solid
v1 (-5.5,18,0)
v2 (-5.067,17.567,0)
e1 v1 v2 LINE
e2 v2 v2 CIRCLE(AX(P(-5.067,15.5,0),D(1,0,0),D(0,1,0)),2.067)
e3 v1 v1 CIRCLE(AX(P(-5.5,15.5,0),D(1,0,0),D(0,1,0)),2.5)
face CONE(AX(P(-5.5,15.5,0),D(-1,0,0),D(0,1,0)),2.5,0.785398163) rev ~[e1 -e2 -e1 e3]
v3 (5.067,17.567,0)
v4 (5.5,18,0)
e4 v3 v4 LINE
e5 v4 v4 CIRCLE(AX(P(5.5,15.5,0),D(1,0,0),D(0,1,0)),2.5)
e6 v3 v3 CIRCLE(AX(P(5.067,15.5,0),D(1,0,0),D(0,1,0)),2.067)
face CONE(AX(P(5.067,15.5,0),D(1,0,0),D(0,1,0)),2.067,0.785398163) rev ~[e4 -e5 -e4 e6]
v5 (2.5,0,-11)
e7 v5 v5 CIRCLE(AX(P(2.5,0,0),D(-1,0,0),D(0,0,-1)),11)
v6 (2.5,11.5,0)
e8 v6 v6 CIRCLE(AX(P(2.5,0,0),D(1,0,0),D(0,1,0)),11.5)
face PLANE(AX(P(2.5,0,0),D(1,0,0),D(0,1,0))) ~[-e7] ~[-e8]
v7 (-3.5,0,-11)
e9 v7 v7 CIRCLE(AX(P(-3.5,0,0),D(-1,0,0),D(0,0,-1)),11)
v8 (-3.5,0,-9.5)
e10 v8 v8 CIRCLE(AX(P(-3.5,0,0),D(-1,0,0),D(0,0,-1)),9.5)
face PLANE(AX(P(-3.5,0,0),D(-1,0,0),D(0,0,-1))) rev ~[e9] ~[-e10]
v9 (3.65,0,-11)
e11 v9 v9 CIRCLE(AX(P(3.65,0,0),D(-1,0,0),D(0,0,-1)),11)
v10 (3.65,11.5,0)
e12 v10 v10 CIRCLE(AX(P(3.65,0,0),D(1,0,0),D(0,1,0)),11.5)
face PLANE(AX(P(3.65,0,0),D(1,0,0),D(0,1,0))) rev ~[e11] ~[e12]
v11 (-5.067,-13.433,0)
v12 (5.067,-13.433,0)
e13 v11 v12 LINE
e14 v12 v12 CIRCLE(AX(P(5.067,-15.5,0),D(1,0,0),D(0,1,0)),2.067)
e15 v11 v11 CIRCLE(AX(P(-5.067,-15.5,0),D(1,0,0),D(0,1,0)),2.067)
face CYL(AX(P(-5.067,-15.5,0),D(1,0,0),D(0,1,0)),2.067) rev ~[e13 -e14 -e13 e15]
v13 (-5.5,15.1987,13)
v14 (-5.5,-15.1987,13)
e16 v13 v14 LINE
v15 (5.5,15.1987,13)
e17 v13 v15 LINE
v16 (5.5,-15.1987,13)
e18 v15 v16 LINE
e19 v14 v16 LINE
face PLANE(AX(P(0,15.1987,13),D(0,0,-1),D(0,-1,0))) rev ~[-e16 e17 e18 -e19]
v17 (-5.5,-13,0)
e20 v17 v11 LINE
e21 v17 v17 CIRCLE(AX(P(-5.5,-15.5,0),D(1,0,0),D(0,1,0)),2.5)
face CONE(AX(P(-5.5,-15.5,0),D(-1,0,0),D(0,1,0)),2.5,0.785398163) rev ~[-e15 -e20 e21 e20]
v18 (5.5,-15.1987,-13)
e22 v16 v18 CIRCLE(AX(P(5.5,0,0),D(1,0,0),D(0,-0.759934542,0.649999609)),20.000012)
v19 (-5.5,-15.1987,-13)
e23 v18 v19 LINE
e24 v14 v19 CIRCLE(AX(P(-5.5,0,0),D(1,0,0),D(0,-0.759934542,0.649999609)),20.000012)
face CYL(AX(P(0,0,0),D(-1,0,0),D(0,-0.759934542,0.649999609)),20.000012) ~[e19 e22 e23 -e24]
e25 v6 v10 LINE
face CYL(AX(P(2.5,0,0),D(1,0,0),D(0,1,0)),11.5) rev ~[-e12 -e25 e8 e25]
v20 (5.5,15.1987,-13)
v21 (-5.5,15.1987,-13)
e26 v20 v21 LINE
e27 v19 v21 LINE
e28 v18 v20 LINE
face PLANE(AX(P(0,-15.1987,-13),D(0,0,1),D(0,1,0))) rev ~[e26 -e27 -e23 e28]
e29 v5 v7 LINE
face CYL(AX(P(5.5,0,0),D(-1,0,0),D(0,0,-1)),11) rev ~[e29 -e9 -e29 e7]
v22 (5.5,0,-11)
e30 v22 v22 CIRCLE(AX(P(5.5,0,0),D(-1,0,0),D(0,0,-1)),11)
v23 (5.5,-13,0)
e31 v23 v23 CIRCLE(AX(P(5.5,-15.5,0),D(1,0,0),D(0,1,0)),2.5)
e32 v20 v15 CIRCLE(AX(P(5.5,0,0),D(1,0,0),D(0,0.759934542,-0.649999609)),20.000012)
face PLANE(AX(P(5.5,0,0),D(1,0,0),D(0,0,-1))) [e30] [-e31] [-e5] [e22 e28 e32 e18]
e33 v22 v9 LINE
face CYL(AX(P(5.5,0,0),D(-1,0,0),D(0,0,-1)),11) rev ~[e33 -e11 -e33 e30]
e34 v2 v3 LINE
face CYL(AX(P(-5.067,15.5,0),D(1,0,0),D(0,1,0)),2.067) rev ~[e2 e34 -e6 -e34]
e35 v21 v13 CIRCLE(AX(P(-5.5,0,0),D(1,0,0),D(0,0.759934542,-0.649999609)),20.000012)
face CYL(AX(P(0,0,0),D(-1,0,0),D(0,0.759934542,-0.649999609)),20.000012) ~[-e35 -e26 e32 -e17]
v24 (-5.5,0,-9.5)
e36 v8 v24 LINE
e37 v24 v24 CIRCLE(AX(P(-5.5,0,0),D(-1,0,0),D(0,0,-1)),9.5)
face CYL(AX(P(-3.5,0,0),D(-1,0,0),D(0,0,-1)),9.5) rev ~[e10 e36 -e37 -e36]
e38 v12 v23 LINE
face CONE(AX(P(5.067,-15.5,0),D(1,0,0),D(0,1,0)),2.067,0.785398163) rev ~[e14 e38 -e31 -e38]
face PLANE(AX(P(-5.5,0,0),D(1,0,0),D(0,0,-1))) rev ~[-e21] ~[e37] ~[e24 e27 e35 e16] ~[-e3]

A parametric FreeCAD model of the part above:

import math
import FreeCAD as App
import Part
import Sketcher

doc = App.newDocument("Part")
body = doc.addObject("PartDesign::Body", "Body")

sketch1 = body.newObject("Sketcher::SketchObject", "Sketch")
sketch1.AttachmentSupport = (doc.getObject("YZ_Plane"), [""])
sketch1.MapMode = "FlatFace"
sketch1.addGeometry(Part.ArcOfCircle(Part.Circle(App.Vector(0, 0, 0), App.Vector(0, 0, 1), 20), math.radians(-41), math.radians(41)), False)
sketch1.addGeometry(Part.LineSegment(App.Vector(15, 13, 0), App.Vector(-15, 13, 0)), False)
sketch1.addGeometry(Part.ArcOfCircle(Part.Circle(App.Vector(0, 0, 0), App.Vector(0, 0, 1), 20), math.radians(139), math.radians(221)), False)
sketch1.addGeometry(Part.LineSegment(App.Vector(-15, -13, 0), App.Vector(15, -13, 0)), False)
sketch1.addConstraint(Sketcher.Constraint("Coincident", 0, 2, 1, 1))
sketch1.addConstraint(Sketcher.Constraint("Coincident", 1, 2, 2, 1))
sketch1.addConstraint(Sketcher.Constraint("Coincident", 2, 2, 3, 1))
sketch1.addConstraint(Sketcher.Constraint("Coincident", 3, 2, 0, 1))
sketch1.addConstraint(Sketcher.Constraint("Horizontal", 1))
sketch1.addConstraint(Sketcher.Constraint("Horizontal", 3))
sketch1.addConstraint(Sketcher.Constraint("Coincident", 0, 3, -1, 1))
sketch1.addConstraint(Sketcher.Constraint("Coincident", 2, 3, -1, 1))
sketch1.addConstraint(Sketcher.Constraint("Equal", 0, 2))
sketch1.addConstraint(Sketcher.Constraint("Vertical", 1, 2, 2, 2))
sketch1.addConstraint(Sketcher.Constraint("Radius", 0, 20.0))
sketch1.addConstraint(Sketcher.Constraint("DistanceY", -1, 1, 0, 2, 13.0))
pad1 = body.newObject("PartDesign::Pad", "Pad")
pad1.Profile = sketch1
pad1.Length = 11
pad1.Midplane = True

sketch2 = body.newObject("Sketcher::SketchObject", "Sketch001")
sketch2.AttachmentSupport = (doc.getObject("YZ_Plane"), [""])
sketch2.MapMode = "FlatFace"
sketch2.AttachmentOffset = App.Placement(App.Vector(0, 0, 5.5), App.Rotation())
sketch2.addGeometry(Part.Circle(App.Vector(0, 0, 0), App.Vector(0, 0, 1), 10), False)
sketch2.addConstraint(Sketcher.Constraint("Coincident", 0, 3, -1, 1))
sketch2.addConstraint(Sketcher.Constraint("Diameter", 0, 19.0))
doc.recompute()
hole = body.newObject("PartDesign::Hole", "Hole")
hole.Profile = sketch2
hole.ThreadType = "None"
hole.Diameter = 19
hole.DepthType = "Dimension"
hole.Depth = 11
hole.DrillPoint = "Flat"
hole.HoleCutType = "Counterbore"
hole.HoleCutDiameter = 22
hole.HoleCutDepth = 9

sketch3 = body.newObject("Sketcher::SketchObject", "Sketch002")
sketch3.AttachmentSupport = (doc.getObject("XY_Plane"), [""])
sketch3.MapMode = "FlatFace"
sketch3.addGeometry(Part.LineSegment(App.Vector(2.5, 0, 0), App.Vector(3.6, 0, 0)), False)
sketch3.addGeometry(Part.LineSegment(App.Vector(3.6, 0, 0), App.Vector(3.6, 11.5, 0)), False)
sketch3.addGeometry(Part.LineSegment(App.Vector(3.6, 11.5, 0), App.Vector(2.5, 11.5, 0)), False)
sketch3.addGeometry(Part.LineSegment(App.Vector(2.5, 11.5, 0), App.Vector(2.5, 0, 0)), False)
sketch3.addConstraint(Sketcher.Constraint("Coincident", 0, 2, 1, 1))
sketch3.addConstraint(Sketcher.Constraint("Coincident", 1, 2, 2, 1))
sketch3.addConstraint(Sketcher.Constraint("Coincident", 2, 2, 3, 1))
sketch3.addConstraint(Sketcher.Constraint("Coincident", 3, 2, 0, 1))
sketch3.addConstraint(Sketcher.Constraint("Horizontal", 0))
sketch3.addConstraint(Sketcher.Constraint("Vertical", 1))
sketch3.addConstraint(Sketcher.Constraint("Horizontal", 2))
sketch3.addConstraint(Sketcher.Constraint("Vertical", 3))
sketch3.addConstraint(Sketcher.Constraint("PointOnObject", 0, 2, -1))
sketch3.addConstraint(Sketcher.Constraint("DistanceY", 1, 1, 1, 2, 11.5))
sketch3.addConstraint(Sketcher.Constraint("DistanceX", 0, 1, 0, 2, 1.15))
sketch3.addConstraint(Sketcher.Constraint("DistanceX", -1, 1, 2, 2, 2.5))
groove = body.newObject("PartDesign::Groove", "Groove")
groove.Profile = sketch3
groove.ReferenceAxis = (sketch3, ["H_Axis"])
groove.Angle = 360

sketch4 = body.newObject("Sketcher::SketchObject", "Sketch003")
sketch4.AttachmentSupport = (doc.getObject("XY_Plane"), [""])
sketch4.MapMode = "FlatFace"
sketch4.addGeometry(Part.LineSegment(App.Vector(-5.5, -15.5, 0), App.Vector(5.5, -15.5, 0)), False)
sketch4.addGeometry(Part.LineSegment(App.Vector(5.5, -15.5, 0), App.Vector(5.5, -13, 0)), False)
sketch4.addGeometry(Part.LineSegment(App.Vector(5.5, -13, 0), App.Vector(5.1, -13.4, 0)), False)
sketch4.addGeometry(Part.LineSegment(App.Vector(5.1, -13.4, 0), App.Vector(-5.1, -13.4, 0)), False)
sketch4.addGeometry(Part.LineSegment(App.Vector(-5.1, -13.4, 0), App.Vector(-5.5, -13, 0)), False)
sketch4.addGeometry(Part.LineSegment(App.Vector(-5.5, -13, 0), App.Vector(-5.5, -15.5, 0)), False)
sketch4.addGeometry(Part.LineSegment(App.Vector(-5.5, -15.5, 0), App.Vector(5.5, -15.5, 0)), True)
sketch4.addConstraint(Sketcher.Constraint("Coincident", 0, 2, 1, 1))
sketch4.addConstraint(Sketcher.Constraint("Coincident", 1, 2, 2, 1))
sketch4.addConstraint(Sketcher.Constraint("Coincident", 2, 2, 3, 1))
sketch4.addConstraint(Sketcher.Constraint("Coincident", 3, 2, 4, 1))
sketch4.addConstraint(Sketcher.Constraint("Coincident", 4, 2, 5, 1))
sketch4.addConstraint(Sketcher.Constraint("Coincident", 5, 2, 0, 1))
sketch4.addConstraint(Sketcher.Constraint("Horizontal", 0))
sketch4.addConstraint(Sketcher.Constraint("Vertical", 1))
sketch4.addConstraint(Sketcher.Constraint("Horizontal", 3))
sketch4.addConstraint(Sketcher.Constraint("Vertical", 5))
sketch4.addConstraint(Sketcher.Constraint("Horizontal", 6))
sketch4.addConstraint(Sketcher.Constraint("Coincident", 6, 1, 5, 2))
sketch4.addConstraint(Sketcher.Constraint("Symmetric", 1, 2, 4, 2, -2))
sketch4.addConstraint(Sketcher.Constraint("Perpendicular", 2, 4))
sketch4.addConstraint(Sketcher.Constraint("Vertical", 1, 2, 6, 2))
sketch4.addConstraint(Sketcher.Constraint("Equal", 2, 4))
sketch4.addConstraint(Sketcher.Constraint("DistanceX", 0, 1, 0, 2, 11.0))
sketch4.addConstraint(Sketcher.Constraint("DistanceY", 1, 1, 1, 2, 2.5))
sketch4.addConstraint(Sketcher.Constraint("DistanceY", 1, 2, -1, 1, 13.0))
sketch4.addConstraint(Sketcher.Constraint("DistanceX", 3, 2, 3, 1, 10.134))
groove2 = body.newObject("PartDesign::Groove", "Groove001")
groove2.Profile = sketch4
groove2.ReferenceAxis = (sketch4, ["Axis0"])
groove2.Angle = 360

sketch5 = body.newObject("Sketcher::SketchObject", "Sketch004")
sketch5.AttachmentSupport = (doc.getObject("XY_Plane"), [""])
sketch5.MapMode = "FlatFace"
sketch5.addGeometry(Part.LineSegment(App.Vector(-5.5, 15.5, 0), App.Vector(5.5, 15.5, 0)), False)
sketch5.addGeometry(Part.LineSegment(App.Vector(5.5, 15.5, 0), App.Vector(5.5, 18, 0)), False)
sketch5.addGeometry(Part.LineSegment(App.Vector(5.5, 18, 0), App.Vector(5.1, 17.6, 0)), False)
sketch5.addGeometry(Part.LineSegment(App.Vector(5.1, 17.6, 0), App.Vector(-5.1, 17.6, 0)), False)
sketch5.addGeometry(Part.LineSegment(App.Vector(-5.1, 17.6, 0), App.Vector(-5.5, 18, 0)), False)
sketch5.addGeometry(Part.LineSegment(App.Vector(-5.5, 18, 0), App.Vector(-5.5, 15.5, 0)), False)
sketch5.addGeometry(Part.LineSegment(App.Vector(-5.5, 15.5, 0), App.Vector(5.5, 15.5, 0)), True)
sketch5.addConstraint(Sketcher.Constraint("Coincident", 0, 2, 1, 1))
sketch5.addConstraint(Sketcher.Constraint("Coincident", 1, 2, 2, 1))
sketch5.addConstraint(Sketcher.Constraint("Coincident", 2, 2, 3, 1))
sketch5.addConstraint(Sketcher.Constraint("Coincident", 3, 2, 4, 1))
sketch5.addConstraint(Sketcher.Constraint("Coincident", 4, 2, 5, 1))
sketch5.addConstraint(Sketcher.Constraint("Coincident", 5, 2, 0, 1))
sketch5.addConstraint(Sketcher.Constraint("Horizontal", 0))
sketch5.addConstraint(Sketcher.Constraint("Vertical", 1))
sketch5.addConstraint(Sketcher.Constraint("Horizontal", 3))
sketch5.addConstraint(Sketcher.Constraint("Vertical", 5))
sketch5.addConstraint(Sketcher.Constraint("Horizontal", 6))
sketch5.addConstraint(Sketcher.Constraint("Coincident", 6, 1, 5, 2))
sketch5.addConstraint(Sketcher.Constraint("Symmetric", 1, 2, 4, 2, -2))
sketch5.addConstraint(Sketcher.Constraint("Perpendicular", 2, 4))
sketch5.addConstraint(Sketcher.Constraint("Vertical", 1, 2, 6, 2))
sketch5.addConstraint(Sketcher.Constraint("Equal", 2, 4))
sketch5.addConstraint(Sketcher.Constraint("DistanceX", 0, 1, 0, 2, 11.0))
sketch5.addConstraint(Sketcher.Constraint("DistanceY", 1, 1, 1, 2, 2.5))
sketch5.addConstraint(Sketcher.Constraint("DistanceY", -1, 1, 1, 2, 18.0))
sketch5.addConstraint(Sketcher.Constraint("DistanceX", 3, 2, 3, 1, 10.134))
groove3 = body.newObject("PartDesign::Groove", "Groove002")
groove3.Profile = sketch5
groove3.ReferenceAxis = (sketch5, ["Axis0"])
groove3.Angle = 360

doc.recompute()
